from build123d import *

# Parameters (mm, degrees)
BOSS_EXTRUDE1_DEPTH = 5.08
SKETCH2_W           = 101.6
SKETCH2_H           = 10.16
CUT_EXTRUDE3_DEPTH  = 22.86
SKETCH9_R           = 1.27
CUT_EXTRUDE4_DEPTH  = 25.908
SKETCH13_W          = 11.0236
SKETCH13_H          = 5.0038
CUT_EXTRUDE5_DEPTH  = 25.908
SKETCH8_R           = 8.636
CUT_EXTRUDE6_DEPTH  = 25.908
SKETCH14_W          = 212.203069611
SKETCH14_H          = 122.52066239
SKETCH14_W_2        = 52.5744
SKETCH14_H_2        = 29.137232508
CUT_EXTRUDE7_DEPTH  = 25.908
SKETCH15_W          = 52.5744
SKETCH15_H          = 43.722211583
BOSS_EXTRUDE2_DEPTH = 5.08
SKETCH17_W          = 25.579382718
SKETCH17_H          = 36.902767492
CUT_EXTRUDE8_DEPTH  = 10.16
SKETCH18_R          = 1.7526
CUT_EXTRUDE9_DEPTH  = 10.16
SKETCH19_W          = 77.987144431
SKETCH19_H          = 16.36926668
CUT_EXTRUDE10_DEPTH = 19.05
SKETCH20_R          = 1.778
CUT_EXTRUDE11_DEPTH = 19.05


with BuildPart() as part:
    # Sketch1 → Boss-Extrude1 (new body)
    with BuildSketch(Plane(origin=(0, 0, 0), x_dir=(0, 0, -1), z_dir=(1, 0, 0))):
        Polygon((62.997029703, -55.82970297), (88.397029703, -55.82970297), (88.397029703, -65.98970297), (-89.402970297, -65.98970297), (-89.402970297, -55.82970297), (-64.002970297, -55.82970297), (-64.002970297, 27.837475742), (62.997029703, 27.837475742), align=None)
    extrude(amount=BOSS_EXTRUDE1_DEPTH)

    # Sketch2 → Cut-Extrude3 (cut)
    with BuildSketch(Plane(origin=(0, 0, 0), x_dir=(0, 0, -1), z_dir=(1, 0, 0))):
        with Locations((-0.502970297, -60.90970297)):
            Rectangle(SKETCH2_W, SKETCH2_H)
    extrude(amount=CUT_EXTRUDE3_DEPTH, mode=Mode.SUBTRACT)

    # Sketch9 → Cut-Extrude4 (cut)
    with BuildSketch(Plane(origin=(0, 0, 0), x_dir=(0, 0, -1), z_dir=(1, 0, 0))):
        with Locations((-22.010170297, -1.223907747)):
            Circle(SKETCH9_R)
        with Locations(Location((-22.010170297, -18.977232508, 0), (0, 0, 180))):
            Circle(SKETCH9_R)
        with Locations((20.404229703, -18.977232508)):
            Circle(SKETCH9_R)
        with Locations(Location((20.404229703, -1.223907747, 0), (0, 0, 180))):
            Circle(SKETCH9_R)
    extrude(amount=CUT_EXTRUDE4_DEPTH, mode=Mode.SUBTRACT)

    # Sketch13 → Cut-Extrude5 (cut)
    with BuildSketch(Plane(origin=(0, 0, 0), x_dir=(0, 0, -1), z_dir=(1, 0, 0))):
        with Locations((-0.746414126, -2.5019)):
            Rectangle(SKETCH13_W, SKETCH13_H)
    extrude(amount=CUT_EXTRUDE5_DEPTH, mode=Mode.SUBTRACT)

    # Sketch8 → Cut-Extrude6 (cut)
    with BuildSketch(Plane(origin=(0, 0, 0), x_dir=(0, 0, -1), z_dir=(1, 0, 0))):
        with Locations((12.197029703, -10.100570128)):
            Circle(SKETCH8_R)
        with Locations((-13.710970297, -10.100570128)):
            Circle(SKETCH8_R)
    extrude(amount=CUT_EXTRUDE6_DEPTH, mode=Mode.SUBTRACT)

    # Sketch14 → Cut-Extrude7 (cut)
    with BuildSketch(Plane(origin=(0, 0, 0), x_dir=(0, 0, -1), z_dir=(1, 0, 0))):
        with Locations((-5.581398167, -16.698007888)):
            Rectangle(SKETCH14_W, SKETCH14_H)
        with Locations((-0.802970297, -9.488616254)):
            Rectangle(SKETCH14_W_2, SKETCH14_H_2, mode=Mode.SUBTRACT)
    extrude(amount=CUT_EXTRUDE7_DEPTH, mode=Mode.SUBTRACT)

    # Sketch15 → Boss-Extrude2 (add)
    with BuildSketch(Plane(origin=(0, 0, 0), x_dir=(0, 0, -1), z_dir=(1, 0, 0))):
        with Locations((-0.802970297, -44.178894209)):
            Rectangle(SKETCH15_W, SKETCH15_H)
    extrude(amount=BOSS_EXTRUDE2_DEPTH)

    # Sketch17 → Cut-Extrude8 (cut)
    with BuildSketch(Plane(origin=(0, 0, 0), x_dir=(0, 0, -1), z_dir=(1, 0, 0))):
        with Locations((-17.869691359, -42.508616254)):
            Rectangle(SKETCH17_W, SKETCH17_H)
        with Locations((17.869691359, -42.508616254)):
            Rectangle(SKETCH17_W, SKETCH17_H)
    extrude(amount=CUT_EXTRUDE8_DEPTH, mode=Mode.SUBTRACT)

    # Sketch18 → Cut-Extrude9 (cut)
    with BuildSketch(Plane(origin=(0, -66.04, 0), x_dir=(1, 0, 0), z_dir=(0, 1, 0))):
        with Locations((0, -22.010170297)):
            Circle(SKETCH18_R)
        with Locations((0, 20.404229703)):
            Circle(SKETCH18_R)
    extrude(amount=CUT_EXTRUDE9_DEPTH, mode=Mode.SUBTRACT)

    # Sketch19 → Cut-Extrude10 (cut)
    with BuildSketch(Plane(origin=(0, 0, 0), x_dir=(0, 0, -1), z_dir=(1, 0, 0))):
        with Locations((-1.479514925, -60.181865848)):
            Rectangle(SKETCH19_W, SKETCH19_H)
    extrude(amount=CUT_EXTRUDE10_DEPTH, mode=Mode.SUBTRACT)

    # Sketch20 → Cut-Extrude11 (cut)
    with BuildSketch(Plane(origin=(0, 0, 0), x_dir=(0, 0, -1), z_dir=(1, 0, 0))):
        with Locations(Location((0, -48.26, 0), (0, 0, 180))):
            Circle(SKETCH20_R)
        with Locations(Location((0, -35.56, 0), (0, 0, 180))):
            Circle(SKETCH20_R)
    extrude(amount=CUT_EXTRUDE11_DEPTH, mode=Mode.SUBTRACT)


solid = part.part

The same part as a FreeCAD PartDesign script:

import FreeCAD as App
import Part
import Sketcher

V = App.Vector
Q = App.Units.Quantity


def add_polygon(sketch, points):
    """Adds a closed chain of lines whose ends are joined by coincident constraints."""
    first, n = sketch.GeometryCount, len(points)
    for a, b in zip(points, points[1:] + points[:1]):
        sketch.addGeometry(Part.LineSegment(App.Vector(*a, 0), App.Vector(*b, 0)), False)
    for i in range(n):
        sketch.addConstraint(Sketcher.Constraint("Coincident", first + i, 2, first + (i + 1) % n, 1))

doc = App.newDocument("Part")
body = doc.addObject("PartDesign::Body", "Body")

# Sketch on YZ plane
sketch1 = body.newObject("Sketcher::SketchObject", "Sketch")
sketch1.AttachmentSupport = (doc.getObject("YZ_Plane"), [""])
sketch1.MapMode = "FlatFace"
add_polygon(sketch1, [(-55.829703, -88.39703), (-55.829703, -62.99703), (27.837476, -62.99703), (27.837476, 64.00297), (-55.829703, 64.00297), (-55.829703, 89.40297), (-65.989703, 89.40297), (-65.989703, -88.39703)])  # lines 0-7
sketch1.addConstraint([
    Sketcher.Constraint("Vertical", 0),
    Sketcher.Constraint("Horizontal", 1),
    Sketcher.Constraint("Vertical", 2),
    Sketcher.Constraint("Horizontal", 3),
    Sketcher.Constraint("Vertical", 4),
    Sketcher.Constraint("Horizontal", 5),
    Sketcher.Constraint("Vertical", 6),
    Sketcher.Constraint("Horizontal", 7),
    Sketcher.Constraint("Vertical", 0, 2, 3, 2),
    Sketcher.Constraint("Equal", 0, 4),
    Sketcher.Constraint("DistanceY", 0, 1, 0, 2, Q("1 in")),
    Sketcher.Constraint("DistanceY", 2, 1, 2, 2, Q("5 in")),
    Sketcher.Constraint("DistanceX", 5, 2, 5, 1, Q("0.4 in")),
    Sketcher.Constraint("DistanceX", 1, 1, 1, 2, Q("83.667179 mm")),
    Sketcher.Constraint("DistanceY", 0, 2, -1, 1, Q("62.99703 mm")),
    Sketcher.Constraint("DistanceX", 0, 2, -1, 1, Q("55.829703 mm")),
])
pad1 = body.newObject("PartDesign::Pad", "Pad")
pad1.Profile = sketch1
pad1.Length = Q("0.2 in")

# Sketch on YZ plane
sketch2 = body.newObject("Sketcher::SketchObject", "Sketch001")
sketch2.AttachmentSupport = (doc.getObject("YZ_Plane"), [""])
sketch2.MapMode = "FlatFace"
add_polygon(sketch2, [(-55.829703, 51.30297), (-65.989703, 51.30297), (-65.989703, -50.29703), (-55.829703, -50.29703)])  # lines 0-3
sketch2.addConstraint([
    Sketcher.Constraint("Horizontal", 0),
    Sketcher.Constraint("Vertical", 1),
    Sketcher.Constraint("Horizontal", 2),
    Sketcher.Constraint("Vertical", 3),
    Sketcher.Constraint("DistanceY", 1, 2, 1, 1, Q("4 in")),
    Sketcher.Constraint("DistanceX", 0, 2, 0, 1, Q("0.4 in")),
    Sketcher.Constraint("DistanceY", -1, 1, 0, 2, Q("51.30297 mm")),
    Sketcher.Constraint("DistanceX", 0, 2, -1, 1, Q("65.989703 mm")),
])
pocket1 = body.newObject("PartDesign::Pocket", "Pocket")
pocket1.Profile = sketch2
pocket1.Length = Q("0.9 in")
pocket1.Reversed = True

# Sketch on YZ plane
sketch3 = body.newObject("Sketcher::SketchObject", "Sketch002")
sketch3.AttachmentSupport = (doc.getObject("YZ_Plane"), [""])
sketch3.MapMode = "FlatFace"
sketch3.addGeometry([
    Part.Circle(V(-1.223908, 22.01017, 0), V(0, 0, 1), 1.27),
    Part.Circle(V(-18.977233, 22.01017, 0), V(0, 0, 1), 1.27),
    Part.Circle(V(-18.977233, -20.40423, 0), V(0, 0, 1), 1.27),
    Part.Circle(V(-1.223908, -20.40423, 0), V(0, 0, 1), 1.27),
], False)
sketch3.addConstraint([
    Sketcher.Constraint("Equal", 0, 1),
    Sketcher.Constraint("Equal", 1, 2),
    Sketcher.Constraint("Equal", 2, 3),
    Sketcher.Constraint("Horizontal", 0, 3, 1, 3),
    Sketcher.Constraint("Horizontal", 2, 3, 3, 3),
    Sketcher.Constraint("Vertical", 1, 3, 2, 3),
    Sketcher.Constraint("Vertical", 0, 3, 3, 3),
    Sketcher.Constraint("Diameter", 0, Q("0.1 in")),
    Sketcher.Constraint("DistanceY", 2, 3, 1, 3, Q("42.4144 mm")),
    Sketcher.Constraint("DistanceY", -1, 1, 0, 3, Q("22.01017 mm")),
    Sketcher.Constraint("DistanceX", 0, 3, -1, 1, Q("1.223908 mm")),
    Sketcher.Constraint("DistanceX", 1, 3, -1, 1, Q("18.977233 mm")),
])
pocket2 = body.newObject("PartDesign::Pocket", "Pocket001")
pocket2.Profile = sketch3
pocket2.Length = Q("1.02 in")
pocket2.Reversed = True

# Sketch on YZ plane
sketch4 = body.newObject("Sketcher::SketchObject", "Sketch003")
sketch4.AttachmentSupport = (doc.getObject("YZ_Plane"), [""])
sketch4.MapMode = "FlatFace"
add_polygon(sketch4, [(0, 6.258214), (-5.0038, 6.258214), (-5.0038, -4.765386), (0, -4.765386)])  # lines 0-3
sketch4.addConstraint([
    Sketcher.Constraint("Horizontal", 0),
    Sketcher.Constraint("Vertical", 1),
    Sketcher.Constraint("Horizontal", 2),
    Sketcher.Constraint("Vertical", 3),
    Sketcher.Constraint("PointOnObject", 2, 2, -2),
    Sketcher.Constraint("DistanceX", 0, 2, 0, 1, Q("0.197 in")),
    Sketcher.Constraint("DistanceY", 1, 2, 1, 1, Q("0.434 in")),
    Sketcher.Constraint("DistanceY", -1, 1, 0, 2, Q("6.258214 mm")),
])
pocket3 = body.newObject("PartDesign::Pocket", "Pocket002")
pocket3.Profile = sketch4
pocket3.Length = Q("1.02 in")
pocket3.Reversed = True

# Sketch on YZ plane
sketch5 = body.newObject("Sketcher::SketchObject", "Sketch004")
sketch5.AttachmentSupport = (doc.getObject("YZ_Plane"), [""])
sketch5.MapMode = "FlatFace"
sketch5.addGeometry([
    Part.Circle(V(-10.10057, -12.19703, 0), V(0, 0, 1), 8.636),
    Part.Circle(V(-10.10057, 13.71097, 0), V(0, 0, 1), 8.636),
], False)
sketch5.addConstraint([
    Sketcher.Constraint("Equal", 0, 1),
    Sketcher.Constraint("Vertical", 0, 3, 1, 3),
    Sketcher.Constraint("Diameter", 0, Q("0.68 in")),
    Sketcher.Constraint("DistanceY", 0, 3, 1, 3, Q("1.02 in")),
    Sketcher.Constraint("DistanceX", 0, 3, -1, 1, Q("10.10057 mm")),
    Sketcher.Constraint("DistanceY", 0, 3, -1, 1, Q("12.19703 mm")),
])
pocket4 = body.newObject("PartDesign::Pocket", "Pocket003")
pocket4.Profile = sketch5
pocket4.Length = Q("1.02 in")
pocket4.Reversed = True

# Sketch on YZ plane
sketch6 = body.newObject("Sketcher::SketchObject", "Sketch005")
sketch6.AttachmentSupport = (doc.getObject("YZ_Plane"), [""])
sketch6.MapMode = "FlatFace"
add_polygon(sketch6, [(44.562323, 111.682933), (-77.958339, 111.682933), (-77.958339, -100.520137), (44.562323, -100.520137)])  # lines 0-3
add_polygon(sketch6, [(-24.057233, -25.48423), (-24.057233, 27.09017), (5.08, 27.09017), (5.08, -25.48423)])  # lines 4-7
sketch6.addConstraint([
    Sketcher.Constraint("Horizontal", 0),
    Sketcher.Constraint("Vertical", 1),
    Sketcher.Constraint("Horizontal", 2),
    Sketcher.Constraint("Vertical", 3),
    Sketcher.Constraint("Vertical", 4),
    Sketcher.Constraint("Horizontal", 5),
    Sketcher.Constraint("Vertical", 6),
    Sketcher.Constraint("Horizontal", 7),
    Sketcher.Constraint("DistanceX", -1, 1, 5, 2, Q("0.2 in")),
    Sketcher.Constraint("DistanceY", 4, 1, 4, 2, Q("52.5744 mm")),
    Sketcher.Constraint("DistanceY", 1, 2, 1, 1, Q("212.20307 mm")),
    Sketcher.Constraint("DistanceX", 0, 2, 0, 1, Q("122.520662 mm")),
    Sketcher.Constraint("DistanceX", 5, 1, 5, 2, Q("29.137233 mm")),
    Sketcher.Constraint("DistanceX", 0, 2, -1, 1, Q("77.958339 mm")),
    Sketcher.Constraint("DistanceY", -1, 1, 4, 2, Q("27.09017 mm")),
    Sketcher.Constraint("DistanceY", -1, 1, 0, 2, Q("111.682933 mm")),
])
pocket5 = body.newObject("PartDesign::Pocket", "Pocket004")
pocket5.Profile = sketch6
pocket5.Length = Q("1.02 in")
pocket5.Reversed = True

# Sketch on YZ plane
sketch7 = body.newObject("Sketcher::SketchObject", "Sketch006")
sketch7.AttachmentSupport = (doc.getObject("YZ_Plane"), [""])
sketch7.MapMode = "FlatFace"
add_polygon(sketch7, [(-22.317788, 27.09017), (-66.04, 27.09017), (-66.04, -25.48423), (-22.317788, -25.48423)])  # lines 0-3
sketch7.addConstraint([
    Sketcher.Constraint("Horizontal", 0),
    Sketcher.Constraint("Vertical", 1),
    Sketcher.Constraint("Horizontal", 2),
    Sketcher.Constraint("Vertical", 3),
    Sketcher.Constraint("DistanceX", 0, 2, -1, 1, Q("2.6 in")),
    Sketcher.Constraint("DistanceY", 1, 2, 1, 1, Q("52.5744 mm")),
    Sketcher.Constraint("DistanceX", 0, 2, 0, 1, Q("43.722212 mm")),
    Sketcher.Constraint("DistanceY", -1, 1, 0, 2, Q("27.09017 mm")),
])
pad2 = body.newObject("PartDesign::Pad", "Pad001")
pad2.Profile = sketch7
pad2.Length = Q("0.2 in")

# Sketch on YZ plane
sketch8 = body.newObject("Sketcher::SketchObject", "Sketch007")
sketch8.AttachmentSupport = (doc.getObject("YZ_Plane"), [""])
sketch8.MapMode = "FlatFace"
add_polygon(sketch8, [(-24.057233, 30.659383), (-60.96, 30.659383), (-60.96, 5.08), (-24.057233, 5.08)])  # lines 0-3
add_polygon(sketch8, [(-24.057233, -5.08), (-60.96, -5.08), (-60.96, -30.659383), (-24.057233, -30.659383)])  # lines 4-7
sketch8.addConstraint([
    Sketcher.Constraint("Horizontal", 0),
    Sketcher.Constraint("Vertical", 1),
    Sketcher.Constraint("Horizontal", 2),
    Sketcher.Constraint("Vertical", 3),
    Sketcher.Constraint("Horizontal", 4),
    Sketcher.Constraint("Vertical", 5),
    Sketcher.Constraint("Horizontal", 6),
    Sketcher.Constraint("Vertical", 7),
    Sketcher.Constraint("Symmetric", 1, 2, 4, 2, -1),
    Sketcher.Constraint("Symmetric", 3, 2, 6, 2, -1),
    Sketcher.Constraint("DistanceX", 0, 2, -1, 1, Q("2.4 in")),
    Sketcher.Constraint("DistanceY", -1, 1, 1, 2, Q("0.2 in")),
    Sketcher.Constraint("DistanceX", 0, 2, 0, 1, Q("36.902767 mm")),
    Sketcher.Constraint("DistanceY", 1, 2, 1, 1, Q("25.579383 mm")),
])
pocket6 = body.newObject("PartDesign::Pocket", "Pocket005")
pocket6.Profile = sketch8
pocket6.Length = Q("0.4 in")
pocket6.Reversed = True

# Sketch on XZ plane
sketch9 = body.newObject("Sketcher::SketchObject", "Sketch008")
sketch9.AttachmentSupport = (doc.getObject("XZ_Plane"), [""])
sketch9.MapMode = "FlatFace"
sketch9.AttachmentOffset = App.Placement(V(0, 0, 2.6 * 25.4), App.Rotation())
sketch9.addGeometry([
    Part.Circle(V(0, 22.01017, 0), V(0, 0, 1), 1.7526),
    Part.Circle(V(0, -20.40423, 0), V(0, 0, 1), 1.7526),
], False)
sketch9.addConstraint([
    Sketcher.Constraint("Equal", 0, 1),
    Sketcher.Constraint("PointOnObject", 0, 3, -2),
    Sketcher.Constraint("PointOnObject", 1, 3, -2),
    Sketcher.Constraint("Diameter", 0, Q("0.138 in")),
    Sketcher.Constraint("DistanceY", 1, 3, 0, 3, Q("42.4144 mm")),
    Sketcher.Constraint("DistanceY", -1, 1, 0, 3, Q("22.01017 mm")),
])
pocket7 = body.newObject("PartDesign::Pocket", "Pocket006")
pocket7.Profile = sketch9
pocket7.Length = Q("0.4 in")

# Sketch on YZ plane
sketch10 = body.newObject("Sketcher::SketchObject", "Sketch009")
sketch10.AttachmentSupport = (doc.getObject("YZ_Plane"), [""])
sketch10.MapMode = "FlatFace"
add_polygon(sketch10, [(-51.997233, 40.473087), (-68.366499, 40.473087), (-68.366499, -37.514057), (-51.997233, -37.514057)])  # lines 0-3
sketch10.addConstraint([
    Sketcher.Constraint("Horizontal", 0),
    Sketcher.Constraint("Vertical", 1),
    Sketcher.Constraint("Horizontal", 2),
    Sketcher.Constraint("Vertical", 3),
    Sketcher.Constraint("DistanceX", 0, 2, -1, 1, Q("68.366499 mm")),
    Sketcher.Constraint("DistanceX", 0, 2, 0, 1, Q("16.369267 mm")),
    Sketcher.Constraint("DistanceY", 1, 2, 1, 1, Q("77.987144 mm")),
    Sketcher.Constraint("DistanceY", -1, 1, 0, 2, Q("40.473087 mm")),
])
pocket8 = body.newObject("PartDesign::Pocket", "Pocket007")
pocket8.Profile = sketch10
pocket8.Length = Q("0.75 in")
pocket8.Reversed = True

# Sketch on YZ plane
sketch11 = body.newObject("Sketcher::SketchObject", "Sketch010")
sketch11.AttachmentSupport = (doc.getObject("YZ_Plane"), [""])
sketch11.MapMode = "FlatFace"
sketch11.addGeometry([
    Part.Circle(V(-48.26, 0, 0), V(0, 0, 1), 1.778),
    Part.Circle(V(-35.56, 0, 0), V(0, 0, 1), 1.778),
], False)
sketch11.addConstraint([
    Sketcher.Constraint("Equal", 0, 1),
    Sketcher.Constraint("PointOnObject", 0, 3, -1),
    Sketcher.Constraint("PointOnObject", 1, 3, -1),
    Sketcher.Constraint("Diameter", 0, Q("0.14 in")),
    Sketcher.Constraint("DistanceX", 0, 3, -1, 1, Q("1.9 in")),
    Sketcher.Constraint("DistanceX", 1, 3, -1, 1, Q("1.4 in")),
])
pocket9 = body.newObject("PartDesign::Pocket", "Pocket008")
pocket9.Profile = sketch11
pocket9.Length = Q("0.75 in")
pocket9.Reversed = True

doc.recompute()
